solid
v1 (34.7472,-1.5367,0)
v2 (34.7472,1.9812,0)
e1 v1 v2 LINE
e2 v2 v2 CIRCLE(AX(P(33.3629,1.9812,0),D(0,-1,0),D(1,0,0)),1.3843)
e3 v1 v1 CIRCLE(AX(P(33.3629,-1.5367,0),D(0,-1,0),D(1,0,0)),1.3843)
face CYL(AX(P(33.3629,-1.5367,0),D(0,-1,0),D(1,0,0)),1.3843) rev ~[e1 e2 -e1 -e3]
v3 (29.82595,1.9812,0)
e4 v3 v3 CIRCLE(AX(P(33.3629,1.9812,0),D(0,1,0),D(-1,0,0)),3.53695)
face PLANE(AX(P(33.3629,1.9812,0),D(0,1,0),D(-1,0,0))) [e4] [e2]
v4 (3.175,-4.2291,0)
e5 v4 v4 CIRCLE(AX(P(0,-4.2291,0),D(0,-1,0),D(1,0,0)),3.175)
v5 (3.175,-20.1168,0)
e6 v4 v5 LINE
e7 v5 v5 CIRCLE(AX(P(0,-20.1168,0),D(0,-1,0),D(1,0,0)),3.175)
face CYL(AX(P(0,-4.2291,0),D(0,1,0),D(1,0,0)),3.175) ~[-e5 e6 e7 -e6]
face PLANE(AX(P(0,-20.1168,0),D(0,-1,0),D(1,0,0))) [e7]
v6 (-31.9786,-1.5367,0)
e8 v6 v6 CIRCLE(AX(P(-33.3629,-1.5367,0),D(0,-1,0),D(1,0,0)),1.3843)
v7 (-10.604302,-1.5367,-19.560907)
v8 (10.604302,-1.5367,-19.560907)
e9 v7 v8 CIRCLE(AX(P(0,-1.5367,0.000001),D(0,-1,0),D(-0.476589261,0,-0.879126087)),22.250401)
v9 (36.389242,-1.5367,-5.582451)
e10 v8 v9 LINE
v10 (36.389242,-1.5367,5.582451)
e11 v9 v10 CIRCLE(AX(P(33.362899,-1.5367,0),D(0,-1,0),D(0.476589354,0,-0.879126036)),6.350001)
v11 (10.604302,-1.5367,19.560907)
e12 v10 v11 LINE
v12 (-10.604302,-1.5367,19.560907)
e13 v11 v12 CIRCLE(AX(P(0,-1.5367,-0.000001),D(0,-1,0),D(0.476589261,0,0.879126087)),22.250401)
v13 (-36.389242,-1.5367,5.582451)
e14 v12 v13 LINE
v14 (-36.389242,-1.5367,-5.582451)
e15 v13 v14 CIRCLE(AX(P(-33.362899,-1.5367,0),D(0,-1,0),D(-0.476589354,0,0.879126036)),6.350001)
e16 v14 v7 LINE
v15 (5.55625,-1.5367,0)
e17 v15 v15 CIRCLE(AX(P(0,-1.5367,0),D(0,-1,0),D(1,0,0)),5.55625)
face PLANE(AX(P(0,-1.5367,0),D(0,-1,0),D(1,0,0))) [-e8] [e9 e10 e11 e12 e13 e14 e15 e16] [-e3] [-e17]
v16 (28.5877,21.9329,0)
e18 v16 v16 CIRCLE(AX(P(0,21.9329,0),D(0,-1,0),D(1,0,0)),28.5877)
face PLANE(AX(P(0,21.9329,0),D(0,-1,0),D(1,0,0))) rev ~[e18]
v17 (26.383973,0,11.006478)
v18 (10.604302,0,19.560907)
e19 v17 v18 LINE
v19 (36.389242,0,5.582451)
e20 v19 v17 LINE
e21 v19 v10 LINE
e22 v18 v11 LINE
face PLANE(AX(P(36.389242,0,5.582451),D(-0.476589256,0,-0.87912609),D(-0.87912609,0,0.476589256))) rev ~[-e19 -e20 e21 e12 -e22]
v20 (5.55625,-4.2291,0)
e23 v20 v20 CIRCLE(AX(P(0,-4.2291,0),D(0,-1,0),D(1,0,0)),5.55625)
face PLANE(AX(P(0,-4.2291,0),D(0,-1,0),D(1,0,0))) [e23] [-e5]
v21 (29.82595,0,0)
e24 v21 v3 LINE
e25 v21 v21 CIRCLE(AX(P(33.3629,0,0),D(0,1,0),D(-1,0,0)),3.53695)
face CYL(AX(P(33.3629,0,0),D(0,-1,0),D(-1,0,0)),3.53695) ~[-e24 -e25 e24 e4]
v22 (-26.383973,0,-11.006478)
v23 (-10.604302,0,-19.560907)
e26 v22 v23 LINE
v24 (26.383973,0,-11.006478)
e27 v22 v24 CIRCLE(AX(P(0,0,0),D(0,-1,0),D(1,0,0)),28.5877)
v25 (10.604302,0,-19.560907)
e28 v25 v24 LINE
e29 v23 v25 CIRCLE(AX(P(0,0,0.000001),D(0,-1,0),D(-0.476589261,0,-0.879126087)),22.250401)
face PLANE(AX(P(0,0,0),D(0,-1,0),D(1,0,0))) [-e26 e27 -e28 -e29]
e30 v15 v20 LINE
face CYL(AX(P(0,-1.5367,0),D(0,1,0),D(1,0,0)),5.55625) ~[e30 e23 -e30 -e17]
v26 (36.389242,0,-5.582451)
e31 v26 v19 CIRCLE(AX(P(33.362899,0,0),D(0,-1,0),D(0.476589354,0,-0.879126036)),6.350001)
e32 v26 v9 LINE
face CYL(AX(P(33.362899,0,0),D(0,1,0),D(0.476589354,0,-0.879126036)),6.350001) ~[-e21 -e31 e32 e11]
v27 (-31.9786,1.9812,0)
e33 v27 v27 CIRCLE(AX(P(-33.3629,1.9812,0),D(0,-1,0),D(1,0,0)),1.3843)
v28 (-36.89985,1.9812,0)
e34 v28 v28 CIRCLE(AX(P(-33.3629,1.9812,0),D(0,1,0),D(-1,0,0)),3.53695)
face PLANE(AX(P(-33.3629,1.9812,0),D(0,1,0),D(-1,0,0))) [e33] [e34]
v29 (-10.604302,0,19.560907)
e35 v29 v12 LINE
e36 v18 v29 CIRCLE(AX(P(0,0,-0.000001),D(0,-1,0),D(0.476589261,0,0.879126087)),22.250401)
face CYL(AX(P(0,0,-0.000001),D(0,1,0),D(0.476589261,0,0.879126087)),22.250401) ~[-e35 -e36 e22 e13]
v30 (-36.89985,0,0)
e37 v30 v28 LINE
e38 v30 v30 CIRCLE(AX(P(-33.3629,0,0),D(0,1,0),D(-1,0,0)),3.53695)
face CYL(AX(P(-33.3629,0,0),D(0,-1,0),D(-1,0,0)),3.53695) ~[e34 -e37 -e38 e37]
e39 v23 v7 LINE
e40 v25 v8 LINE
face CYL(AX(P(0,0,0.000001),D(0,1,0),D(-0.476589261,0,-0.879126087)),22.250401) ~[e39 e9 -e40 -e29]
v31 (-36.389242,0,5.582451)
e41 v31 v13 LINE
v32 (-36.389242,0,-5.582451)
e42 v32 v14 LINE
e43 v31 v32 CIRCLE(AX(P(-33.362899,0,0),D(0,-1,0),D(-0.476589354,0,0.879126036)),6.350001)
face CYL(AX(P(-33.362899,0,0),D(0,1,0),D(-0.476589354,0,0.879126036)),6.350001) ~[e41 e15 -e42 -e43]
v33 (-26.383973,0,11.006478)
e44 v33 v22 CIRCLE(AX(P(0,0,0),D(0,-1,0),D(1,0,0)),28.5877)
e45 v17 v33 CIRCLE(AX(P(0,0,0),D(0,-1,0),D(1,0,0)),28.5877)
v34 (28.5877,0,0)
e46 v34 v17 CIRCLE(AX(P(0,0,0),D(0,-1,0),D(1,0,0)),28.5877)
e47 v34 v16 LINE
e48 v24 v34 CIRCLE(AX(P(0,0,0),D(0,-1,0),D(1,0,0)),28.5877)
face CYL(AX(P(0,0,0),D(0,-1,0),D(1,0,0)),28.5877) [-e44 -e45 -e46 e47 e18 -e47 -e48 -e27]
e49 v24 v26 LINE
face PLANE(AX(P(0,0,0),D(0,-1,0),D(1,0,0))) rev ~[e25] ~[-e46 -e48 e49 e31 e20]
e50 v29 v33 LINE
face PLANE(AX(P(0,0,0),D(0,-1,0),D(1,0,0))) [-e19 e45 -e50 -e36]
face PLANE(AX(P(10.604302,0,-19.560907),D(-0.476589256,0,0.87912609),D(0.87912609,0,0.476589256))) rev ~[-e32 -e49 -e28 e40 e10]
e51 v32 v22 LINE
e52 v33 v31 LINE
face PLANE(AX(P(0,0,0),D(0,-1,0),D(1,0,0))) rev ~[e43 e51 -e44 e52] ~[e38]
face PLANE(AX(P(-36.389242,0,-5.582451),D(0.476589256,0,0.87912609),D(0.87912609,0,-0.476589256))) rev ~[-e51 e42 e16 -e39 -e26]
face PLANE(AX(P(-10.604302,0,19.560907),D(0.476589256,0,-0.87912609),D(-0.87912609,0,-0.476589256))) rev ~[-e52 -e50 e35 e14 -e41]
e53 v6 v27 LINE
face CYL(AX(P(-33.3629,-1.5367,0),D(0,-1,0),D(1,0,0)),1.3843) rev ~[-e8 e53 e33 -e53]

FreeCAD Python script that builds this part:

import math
import FreeCAD as App
import Part
import Sketcher

V = App.Vector
Q = App.Units.Quantity

doc = App.newDocument("Part")
params = doc.addObject("Spreadsheet::Sheet", "Params")
for row, (alias, value) in enumerate([
    ("sketch1_diameter", "2.251 in"),
    ("pad1_length", "0.8635 in"),
    ("sketch2_radius", "0.25 in"),
    ("sketch2_radius2", "0.876 in"),
    ("pad2_length", "0.0605 in"),
    ("sketch3_diameter", "0.4375 in"),
    ("pad3_length", "0.106 in"),
    ("sketch4_diameter", "0.25 in"),
    ("pad4_length", "0.6255 in"),
    ("pad5_length", "0.078 in"),
    ("sketch6_diameter", "0.109 in"),
], start=1):
    params.set(f"A{row}", alias)
    params.set(f"B{row}", "=" + value)
    params.setAlias(f"B{row}", alias)

body = doc.addObject("PartDesign::Body", "Body")

# Sketch on XZ plane
sketch1 = body.newObject("Sketcher::SketchObject", "Sketch")
sketch1.AttachmentSupport = (doc.getObject("XZ_Plane"), [""])
sketch1.MapMode = "FlatFace"
sketch1.addGeometry(Part.Circle(V(0, 0, 0), V(0, 0, 1), 29), False)
sketch1.addConstraint(Sketcher.Constraint("Coincident", 0, 3, -1, 1))
sketch1.addConstraint(Sketcher.Constraint("Diameter", 0, Q("2.251 in")))
sketch1.setExpression("Constraints[1]", "Params.sketch1_diameter")
pad1 = body.newObject("PartDesign::Pad", "Pad")
pad1.Profile = sketch1
pad1.setExpression("Length", "Params.pad1_length")
pad1.Reversed = True

# Sketch on XZ plane
sketch2 = body.newObject("Sketcher::SketchObject", "Sketch001")
sketch2.AttachmentSupport = (doc.getObject("XZ_Plane"), [""])
sketch2.MapMode = "FlatFace"
sketch2.addGeometry(Part.LineSegment(V(-11, 20, 0), V(-36, 6, 0)), False)
sketch2.addGeometry(Part.ArcOfCircle(Part.Circle(V(-33, 0, 0), V(0, 0, 1), 6), math.radians(118), math.radians(242)), False)
sketch2.addGeometry(Part.LineSegment(V(-36, -6, 0), V(-11, -20, 0)), False)
sketch2.addGeometry(Part.ArcOfCircle(Part.Circle(V(0, 0, 0), V(0, 0, 1), 22), math.radians(-118), math.radians(-62)), False)
sketch2.addGeometry(Part.LineSegment(V(11, -20, 0), V(36, -6, 0)), False)
sketch2.addGeometry(Part.ArcOfCircle(Part.Circle(V(33, 0, 0), V(0, 0, 1), 6), math.radians(-62), math.radians(62)), False)
sketch2.addGeometry(Part.LineSegment(V(36, 6, 0), V(11, 20, 0)), False)
sketch2.addGeometry(Part.ArcOfCircle(Part.Circle(V(0, 0, 0), V(0, 0, 1), 22), math.radians(62), math.radians(118)), False)
sketch2.addConstraint(Sketcher.Constraint("Tangent", 0, 2, 1, 1))
sketch2.addConstraint(Sketcher.Constraint("Tangent", 1, 2, 2, 1))
sketch2.addConstraint(Sketcher.Constraint("Tangent", 2, 2, 3, 1))
sketch2.addConstraint(Sketcher.Constraint("Tangent", 3, 2, 4, 1))
sketch2.addConstraint(Sketcher.Constraint("Tangent", 4, 2, 5, 1))
sketch2.addConstraint(Sketcher.Constraint("Tangent", 5, 2, 6, 1))
sketch2.addConstraint(Sketcher.Constraint("Tangent", 6, 2, 7, 1))
sketch2.addConstraint(Sketcher.Constraint("Tangent", 7, 2, 0, 1))
sketch2.addConstraint(Sketcher.Constraint("Coincident", 3, 3, -1, 1))
sketch2.addConstraint(Sketcher.Constraint("Coincident", 7, 3, -1, 1))
sketch2.addConstraint(Sketcher.Constraint("Equal", 1, 5))
sketch2.addConstraint(Sketcher.Constraint("Equal", 3, 7))
sketch2.addConstraint(Sketcher.Constraint("Symmetric", 1, 3, 5, 3, -1, 1))
sketch2.addConstraint(Sketcher.Constraint("PointOnObject", 1, 3, -1))
sketch2.addConstraint(Sketcher.Constraint("Radius", 1, Q("0.25 in")))
sketch2.addConstraint(Sketcher.Constraint("Radius", 3, Q("0.876 in")))
sketch2.addConstraint(Sketcher.Constraint("DistanceX", 1, 3, 5, 3, Q("2.6269999 in")))
sketch2.setExpression("Constraints[14]", "Params.sketch2_radius")
sketch2.setExpression("Constraints[15]", "Params.sketch2_radius2")
pad2 = body.newObject("PartDesign::Pad", "Pad001")
pad2.Profile = sketch2
pad2.setExpression("Length", "Params.pad2_length")

# Sketch on XZ plane
sketch3 = body.newObject("Sketcher::SketchObject", "Sketch002")
sketch3.AttachmentSupport = (doc.getObject("XZ_Plane"), [""])
sketch3.MapMode = "FlatFace"
sketch3.AttachmentOffset = App.Placement(V(0, 0, 0.0605 * 25.4), App.Rotation())
sketch3.addGeometry(Part.Circle(V(0, 0, 0), V(0, 0, 1), 6), False)
sketch3.addConstraint(Sketcher.Constraint("Coincident", 0, 3, -1, 1))
sketch3.addConstraint(Sketcher.Constraint("Diameter", 0, Q("0.4375 in")))
sketch3.setExpression("Constraints[1]", "Params.sketch3_diameter")
pad3 = body.newObject("PartDesign::Pad", "Pad002")
pad3.Profile = sketch3
pad3.setExpression("Length", "Params.pad3_length")

# Sketch on XZ plane
sketch4 = body.newObject("Sketcher::SketchObject", "Sketch003")
sketch4.AttachmentSupport = (doc.getObject("XZ_Plane"), [""])
sketch4.MapMode = "FlatFace"
sketch4.AttachmentOffset = App.Placement(V(0, 0, 0.1665 * 25.4), App.Rotation())
sketch4.addGeometry(Part.Circle(V(0, 0, 0), V(0, 0, 1), 3.2), False)
sketch4.addConstraint(Sketcher.Constraint("Coincident", 0, 3, -1, 1))
sketch4.addConstraint(Sketcher.Constraint("Diameter", 0, Q("0.25 in")))
sketch4.setExpression("Constraints[1]", "Params.sketch4_diameter")
pad4 = body.newObject("PartDesign::Pad", "Pad003")
pad4.Profile = sketch4
pad4.setExpression("Length", "Params.pad4_length")

# Sketch on XZ plane
sketch5 = body.newObject("Sketcher::SketchObject", "Sketch004")
sketch5.AttachmentSupport = (doc.getObject("XZ_Plane"), [""])
sketch5.MapMode = "FlatFace"
sketch5.addGeometry(Part.Circle(V(33.4, 0, 0), V(0, 0, 1), 3.5), False)
sketch5.addGeometry(Part.Circle(V(-33.4, 0, 0), V(0, 0, 1), 3.5), False)
sketch5.addConstraint(Sketcher.Constraint("Equal", 0, 1))
sketch5.addConstraint(Sketcher.Constraint("Symmetric", 0, 3, 1, 3, -1, 1))
sketch5.addConstraint(Sketcher.Constraint("PointOnObject", 0, 3, -1))
sketch5.addConstraint(Sketcher.Constraint("Diameter", 0, Q("0.2785 in")))
sketch5.addConstraint(Sketcher.Constraint("DistanceX", 1, 3, 0, 3, Q("2.627 in")))
pad5 = body.newObject("PartDesign::Pad", "Pad004")
pad5.Profile = sketch5
pad5.setExpression("Length", "Params.pad5_length")
pad5.Reversed = True

# Sketch on XZ plane
sketch6 = body.newObject("Sketcher::SketchObject", "Sketch005")
sketch6.AttachmentSupport = (doc.getObject("XZ_Plane"), [""])
sketch6.MapMode = "FlatFace"
sketch6.AttachmentOffset = App.Placement(V(0, 0, 0.0605 * 25.4), App.Rotation())
sketch6.addGeometry(Part.Circle(V(33.4, 0, 0), V(0, 0, 1), 1.4), False)
sketch6.addGeometry(Part.Circle(V(-33.4, 0, 0), V(0, 0, 1), 1.4), False)
sketch6.addConstraint(Sketcher.Constraint("Equal", 0, 1))
sketch6.addConstraint(Sketcher.Constraint("Symmetric", 0, 3, 1, 3, -1, 1))
sketch6.addConstraint(Sketcher.Constraint("PointOnObject", 0, 3, -1))
sketch6.addConstraint(Sketcher.Constraint("Diameter", 0, Q("0.109 in")))
sketch6.addConstraint(Sketcher.Constraint("DistanceX", 1, 3, 0, 3, Q("2.627 in")))
sketch6.setExpression("Constraints[3]", "Params.sketch6_diameter")
pocket1 = body.newObject("PartDesign::Pocket", "Pocket")
pocket1.Profile = sketch6
pocket1.Type = "ThroughAll"

doc.recompute()
